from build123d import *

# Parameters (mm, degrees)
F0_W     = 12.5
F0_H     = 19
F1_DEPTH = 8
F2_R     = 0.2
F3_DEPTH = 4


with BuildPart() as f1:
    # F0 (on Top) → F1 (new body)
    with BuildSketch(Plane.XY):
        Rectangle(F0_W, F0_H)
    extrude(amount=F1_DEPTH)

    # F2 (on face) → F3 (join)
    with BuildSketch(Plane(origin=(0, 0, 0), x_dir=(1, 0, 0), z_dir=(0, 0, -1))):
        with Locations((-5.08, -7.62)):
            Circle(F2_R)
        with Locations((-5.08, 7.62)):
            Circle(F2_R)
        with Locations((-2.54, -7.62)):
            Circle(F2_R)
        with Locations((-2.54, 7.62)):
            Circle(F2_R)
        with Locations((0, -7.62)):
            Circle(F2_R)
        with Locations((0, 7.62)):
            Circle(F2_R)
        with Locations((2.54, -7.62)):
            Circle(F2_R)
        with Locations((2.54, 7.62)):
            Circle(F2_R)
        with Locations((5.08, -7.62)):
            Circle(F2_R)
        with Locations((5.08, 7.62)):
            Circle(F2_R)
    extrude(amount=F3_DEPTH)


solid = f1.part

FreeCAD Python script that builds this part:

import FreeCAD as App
import Part
import Sketcher
from FreeCAD import Vector
Q = App.Units.Quantity


def add_polygon(sketch, points):
    """Adds a closed chain of lines whose ends are joined by coincident constraints."""
    first, n = sketch.GeometryCount, len(points)
    for a, b in zip(points, points[1:] + points[:1]):
        sketch.addGeometry(Part.LineSegment(App.Vector(*a, 0), App.Vector(*b, 0)), False)
    for i in range(n):
        sketch.addConstraint(Sketcher.Constraint("Coincident", first + i, 2, first + (i + 1) % n, 1))

doc = App.newDocument("Part")
body = doc.addObject("PartDesign::Body", "Body")

# Sketch on XY plane
sketch1 = body.newObject("Sketcher::SketchObject", "Sketch")
sketch1.AttachmentSupport = (doc.getObject("XY_Plane"), [""])
sketch1.MapMode = "FlatFace"
add_polygon(sketch1, [(-6, 10), (-6, -10), (6, -10), (6, 10)])  # lines 0-3
sketch1.addConstraint([
    Sketcher.Constraint("Vertical", 0),
    Sketcher.Constraint("Horizontal", 1),
    Sketcher.Constraint("Vertical", 2),
    Sketcher.Constraint("Horizontal", 3),
    Sketcher.Constraint("Symmetric", 0, 2, 2, 2, -1, 1),
    Sketcher.Constraint("DistanceY", 0, 2, 0, 1, Q("19 mm")),
    Sketcher.Constraint("DistanceX", 1, 1, 1, 2, Q("12.5 mm")),
])
pad1 = body.newObject("PartDesign::Pad", "Pad")
pad1.Profile = sketch1
pad1.Length = 8

# Sketch on XY plane
sketch2 = body.newObject("Sketcher::SketchObject", "Sketch001")
sketch2.AttachmentSupport = (doc.getObject("XY_Plane"), [""])
sketch2.MapMode = "FlatFace"
sketch2.addGeometry([
    Part.Circle(Vector(-5.08, 7.62, 0), Vector(0, 0, 1), 0.2),  # 0
    Part.Circle(Vector(-5.08, -7.62, 0), Vector(0, 0, 1), 0.2),  # 1
    Part.Circle(Vector(-2.54, 7.62, 0), Vector(0, 0, 1), 0.2),  # 2
    Part.Circle(Vector(-2.54, -7.62, 0), Vector(0, 0, 1), 0.2),  # 3
    Part.Circle(Vector(0, 7.62, 0), Vector(0, 0, 1), 0.2),  # 4
    Part.Circle(Vector(0, -7.62, 0), Vector(0, 0, 1), 0.2),  # 5
    Part.Circle(Vector(2.54, 7.62, 0), Vector(0, 0, 1), 0.2),  # 6
    Part.Circle(Vector(2.54, -7.62, 0), Vector(0, 0, 1), 0.2),  # 7
    Part.Circle(Vector(5.08, 7.62, 0), Vector(0, 0, 1), 0.2),  # 8
    Part.Circle(Vector(5.08, -7.62, 0), Vector(0, 0, 1), 0.2),  # 9
], False)
sketch2.addConstraint([
    Sketcher.Constraint("Equal", 0, 1),
    Sketcher.Constraint("Equal", 1, 2),
    Sketcher.Constraint("Equal", 2, 3),
    Sketcher.Constraint("Equal", 3, 4),
    Sketcher.Constraint("Equal", 4, 5),
    Sketcher.Constraint("Equal", 5, 6),
    Sketcher.Constraint("Equal", 6, 7),
    Sketcher.Constraint("Equal", 7, 8),
    Sketcher.Constraint("Equal", 8, 9),
    Sketcher.Constraint("Symmetric", 4, 3, 5, 3, -1, 1),
    Sketcher.Constraint("Symmetric", 3, 3, 6, 3, -1, 1),
    Sketcher.Constraint("Symmetric", 2, 3, 7, 3, -1, 1),
    Sketcher.Constraint("Symmetric", 1, 3, 8, 3, -1, 1),
    Sketcher.Constraint("Symmetric", 0, 3, 9, 3, -1, 1),
    Sketcher.Constraint("Symmetric", 2, 3, 6, 3, -2),
    Sketcher.Constraint("Symmetric", 0, 3, 8, 3, -2),
    Sketcher.Constraint("PointOnObject", 4, 3, -2),
    Sketcher.Constraint("Horizontal", 0, 3, 2, 3),
    Sketcher.Constraint("Horizontal", 2, 3, 4, 3),
    Sketcher.Constraint("Diameter", 0, Q("0.4 mm")),
    Sketcher.Constraint("DistanceX", 0, 3, -1, 1, Q("5.08 mm")),
    Sketcher.Constraint("DistanceY", -1, 1, 0, 3, Q("7.62 mm")),
    Sketcher.Constraint("DistanceX", 2, 3, -1, 1, Q("2.54 mm")),
])
pad2 = body.newObject("PartDesign::Pad", "Pad001")
pad2.Profile = sketch2
pad2.Length = 4
pad2.Reversed = True

doc.recompute()
